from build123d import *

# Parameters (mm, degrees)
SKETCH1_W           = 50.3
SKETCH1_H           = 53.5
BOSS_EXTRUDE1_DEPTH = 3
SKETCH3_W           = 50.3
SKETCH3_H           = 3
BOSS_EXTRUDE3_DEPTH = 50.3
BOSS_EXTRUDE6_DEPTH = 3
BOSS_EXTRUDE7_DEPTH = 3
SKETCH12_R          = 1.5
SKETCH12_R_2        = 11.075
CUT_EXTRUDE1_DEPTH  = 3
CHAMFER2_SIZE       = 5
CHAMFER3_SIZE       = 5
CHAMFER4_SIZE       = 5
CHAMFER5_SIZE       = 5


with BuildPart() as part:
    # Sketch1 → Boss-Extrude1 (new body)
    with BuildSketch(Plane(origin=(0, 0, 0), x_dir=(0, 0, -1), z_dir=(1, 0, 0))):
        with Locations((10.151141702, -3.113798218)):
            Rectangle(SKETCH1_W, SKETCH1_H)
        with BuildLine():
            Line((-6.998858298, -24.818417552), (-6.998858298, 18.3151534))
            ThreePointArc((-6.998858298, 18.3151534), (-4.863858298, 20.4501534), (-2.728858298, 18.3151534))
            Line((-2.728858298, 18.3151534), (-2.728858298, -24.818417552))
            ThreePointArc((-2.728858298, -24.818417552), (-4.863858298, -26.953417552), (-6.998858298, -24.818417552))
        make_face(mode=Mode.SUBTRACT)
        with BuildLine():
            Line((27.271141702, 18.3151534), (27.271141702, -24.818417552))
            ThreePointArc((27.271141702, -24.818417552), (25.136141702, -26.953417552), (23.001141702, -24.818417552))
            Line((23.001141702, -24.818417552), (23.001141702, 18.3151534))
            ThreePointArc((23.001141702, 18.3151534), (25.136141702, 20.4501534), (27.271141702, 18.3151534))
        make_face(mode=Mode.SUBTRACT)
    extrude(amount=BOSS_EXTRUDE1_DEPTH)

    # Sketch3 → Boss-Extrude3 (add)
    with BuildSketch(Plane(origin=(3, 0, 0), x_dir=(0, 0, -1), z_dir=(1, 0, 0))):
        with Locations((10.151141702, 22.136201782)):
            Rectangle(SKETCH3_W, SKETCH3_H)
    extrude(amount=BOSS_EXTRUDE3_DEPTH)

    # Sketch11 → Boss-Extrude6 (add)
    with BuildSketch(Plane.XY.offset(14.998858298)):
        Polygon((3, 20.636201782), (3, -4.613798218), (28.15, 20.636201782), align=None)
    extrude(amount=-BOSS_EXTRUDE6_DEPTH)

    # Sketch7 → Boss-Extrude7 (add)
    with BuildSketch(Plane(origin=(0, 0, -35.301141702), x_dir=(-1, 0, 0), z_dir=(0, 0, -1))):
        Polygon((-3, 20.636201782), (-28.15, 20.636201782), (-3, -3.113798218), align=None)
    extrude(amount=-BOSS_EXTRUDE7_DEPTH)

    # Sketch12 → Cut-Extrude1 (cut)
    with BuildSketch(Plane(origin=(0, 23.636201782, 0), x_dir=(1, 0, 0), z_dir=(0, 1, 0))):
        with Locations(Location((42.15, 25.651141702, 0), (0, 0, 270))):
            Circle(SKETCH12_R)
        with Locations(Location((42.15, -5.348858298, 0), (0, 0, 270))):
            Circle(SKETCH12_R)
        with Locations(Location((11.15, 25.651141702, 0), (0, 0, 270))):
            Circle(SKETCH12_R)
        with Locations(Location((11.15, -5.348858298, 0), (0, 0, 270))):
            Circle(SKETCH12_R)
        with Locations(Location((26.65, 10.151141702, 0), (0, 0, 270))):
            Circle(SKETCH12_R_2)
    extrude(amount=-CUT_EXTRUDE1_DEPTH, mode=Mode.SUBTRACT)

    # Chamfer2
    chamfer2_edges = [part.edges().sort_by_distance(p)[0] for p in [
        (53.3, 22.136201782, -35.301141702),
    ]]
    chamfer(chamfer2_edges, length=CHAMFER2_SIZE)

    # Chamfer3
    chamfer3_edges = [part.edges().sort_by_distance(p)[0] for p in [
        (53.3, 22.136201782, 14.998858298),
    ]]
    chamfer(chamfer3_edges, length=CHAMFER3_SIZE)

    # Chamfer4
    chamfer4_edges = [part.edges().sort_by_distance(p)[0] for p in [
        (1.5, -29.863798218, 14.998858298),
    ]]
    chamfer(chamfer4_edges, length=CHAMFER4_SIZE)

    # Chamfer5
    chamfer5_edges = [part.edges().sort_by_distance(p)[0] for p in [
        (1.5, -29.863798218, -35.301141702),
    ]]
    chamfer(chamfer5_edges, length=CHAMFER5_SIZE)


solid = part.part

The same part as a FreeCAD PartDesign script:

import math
import FreeCAD as App
import Part
import Sketcher
from FreeCAD import Vector
Q = App.Units.Quantity


def edges_at(feature, points):
    """Names of the edges that pass closest to the given points."""
    edges = feature.Shape.Edges
    near = lambda p: min(range(len(edges)), key=lambda i: edges[i].distToShape(Part.Vertex(*p))[0])
    return sorted({f"Edge{near(p) + 1}" for p in points})


def add_polygon(sketch, points):
    """Adds a closed chain of lines whose ends are joined by coincident constraints."""
    first, n = sketch.GeometryCount, len(points)
    for a, b in zip(points, points[1:] + points[:1]):
        sketch.addGeometry(Part.LineSegment(App.Vector(*a, 0), App.Vector(*b, 0)), False)
    for i in range(n):
        sketch.addConstraint(Sketcher.Constraint("Coincident", first + i, 2, first + (i + 1) % n, 1))

doc = App.newDocument("Part")
body = doc.addObject("PartDesign::Body", "Body")

# Sketch on YZ plane
sketch1 = body.newObject("Sketcher::SketchObject", "Sketch")
sketch1.AttachmentSupport = (doc.getObject("YZ_Plane"), [""])
sketch1.MapMode = "FlatFace"
add_polygon(sketch1, [(23.6, 15), (-29.9, 15), (-29.9, -35.3), (23.6, -35.3)])  # lines 0-3
sketch1.addGeometry(Part.ArcOfCircle(Part.Circle(Vector(-24.8, 4.9, 0), Vector(0, 0, 1), 2.1), math.radians(90), math.radians(270)), False)  # 4
sketch1.addGeometry(Part.LineSegment(Vector(-24.8, 7, 0), Vector(18.3, 7, 0)), False)  # 5
sketch1.addGeometry(Part.ArcOfCircle(Part.Circle(Vector(18.3, 4.9, 0), Vector(0, 0, 1), 2.1), math.radians(-90), math.radians(90)), False)  # 6
sketch1.addGeometry(Part.LineSegment(Vector(18.3, 2.7, 0), Vector(-24.8, 2.7, 0)), False)  # 7
sketch1.addGeometry(Part.ArcOfCircle(Part.Circle(Vector(18.3, -25.1, 0), Vector(0, 0, 1), 2.1), math.radians(-90), math.radians(90)), False)  # 8
sketch1.addGeometry(Part.LineSegment(Vector(18.3, -27.3, 0), Vector(-24.8, -27.3, 0)), False)  # 9
sketch1.addGeometry(Part.ArcOfCircle(Part.Circle(Vector(-24.8, -25.1, 0), Vector(0, 0, 1), 2.1), math.radians(90), math.radians(270)), False)  # 10
sketch1.addGeometry(Part.LineSegment(Vector(-24.8, -23, 0), Vector(18.3, -23, 0)), False)  # 11
sketch1.addConstraint([
    Sketcher.Constraint("Tangent", 4, 1, 5, 1),
    Sketcher.Constraint("Tangent", 5, 2, 6, 2),
    Sketcher.Constraint("Tangent", 6, 1, 7, 1),
    Sketcher.Constraint("Tangent", 7, 2, 4, 2),
    Sketcher.Constraint("Tangent", 8, 1, 9, 1),
    Sketcher.Constraint("Tangent", 9, 2, 10, 2),
    Sketcher.Constraint("Tangent", 10, 1, 11, 1),
    Sketcher.Constraint("Tangent", 11, 2, 8, 2),
    Sketcher.Constraint("Horizontal", 0),
    Sketcher.Constraint("Vertical", 1),
    Sketcher.Constraint("Horizontal", 2),
    Sketcher.Constraint("Vertical", 3),
    Sketcher.Constraint("Horizontal", 5),
    Sketcher.Constraint("Horizontal", 7),
    Sketcher.Constraint("Horizontal", 9),
    Sketcher.Constraint("Horizontal", 11),
    Sketcher.Constraint("Equal", 6, 8),
    Sketcher.Constraint("Vertical", 6, 3, 8, 3),
    Sketcher.Constraint("Vertical", 4, 3, 10, 3),
    Sketcher.Constraint("DistanceX", 0, 2, 0, 1, Q("53.5 mm")),
    Sketcher.Constraint("DistanceY", 1, 2, 1, 1, Q("50.3 mm")),
    Sketcher.Constraint("Radius", 4, Q("2.135 mm")),
    Sketcher.Constraint("DistanceY", 8, 3, 6, 3, Q("30 mm")),
    Sketcher.Constraint("DistanceY", 4, 1, 0, 2, Q("8 mm")),
    Sketcher.Constraint("DistanceX", 5, 1, 5, 2, Q("43.133571 mm")),
    Sketcher.Constraint("DistanceX", 0, 2, -1, 1, Q("29.863798 mm")),
    Sketcher.Constraint("DistanceY", -1, 1, 4, 3, Q("4.863858 mm")),
    Sketcher.Constraint("DistanceX", 0, 2, 4, 3, Q("5.045381 mm")),
])
pad1 = body.newObject("PartDesign::Pad", "Pad")
pad1.Profile = sketch1
pad1.Length = 3

# Sketch on YZ plane
sketch2 = body.newObject("Sketcher::SketchObject", "Sketch001")
sketch2.AttachmentSupport = (doc.getObject("YZ_Plane"), [""])
sketch2.MapMode = "FlatFace"
sketch2.AttachmentOffset = App.Placement(Vector(0, 0, 3), App.Rotation())
add_polygon(sketch2, [(23.6, 15), (20.6, 15), (20.6, -35.3), (23.6, -35.3)])  # lines 0-3
sketch2.addConstraint([
    Sketcher.Constraint("Horizontal", 0),
    Sketcher.Constraint("Vertical", 1),
    Sketcher.Constraint("Horizontal", 2),
    Sketcher.Constraint("Vertical", 3),
    Sketcher.Constraint("DistanceX", 0, 2, 0, 1, Q("3 mm")),
    Sketcher.Constraint("DistanceY", 1, 2, 1, 1, Q("50.3 mm")),
    Sketcher.Constraint("DistanceX", -1, 1, 0, 2, Q("20.636202 mm")),
    Sketcher.Constraint("DistanceY", -1, 1, 0, 2, Q("14.998858 mm")),
])
pad2 = body.newObject("PartDesign::Pad", "Pad001")
pad2.Profile = sketch2
pad2.Length = 50.3

# Sketch on XY plane
sketch3 = body.newObject("Sketcher::SketchObject", "Sketch002")
sketch3.AttachmentSupport = (doc.getObject("XY_Plane"), [""])
sketch3.MapMode = "FlatFace"
sketch3.AttachmentOffset = App.Placement(Vector(0, 0, 14.998858), App.Rotation())
add_polygon(sketch3, [(3, 21), (3, -5), (28, 21)])  # lines 0-2
sketch3.addConstraint([
    Sketcher.Constraint("Vertical", 0),
    Sketcher.Constraint("Horizontal", 2),
    Sketcher.Constraint("DistanceX", -1, 1, 0, 2, Q("3 mm")),
    Sketcher.Constraint("DistanceX", 2, 2, 2, 1, Q("25.15 mm")),
    Sketcher.Constraint("DistanceY", 0, 2, 0, 1, Q("25.25 mm")),
    Sketcher.Constraint("DistanceY", 0, 2, -1, 1, Q("4.613798 mm")),
])
pad3 = body.newObject("PartDesign::Pad", "Pad002")
pad3.Profile = sketch3
pad3.Length = 3
pad3.Reversed = True

# Sketch on XY plane
sketch4 = body.newObject("Sketcher::SketchObject", "Sketch003")
sketch4.AttachmentSupport = (doc.getObject("XY_Plane"), [""])
sketch4.MapMode = "FlatFace"
sketch4.AttachmentOffset = App.Placement(Vector(0, 0, -35.301142), App.Rotation())
add_polygon(sketch4, [(3, 21), (28, 21), (3, -3)])  # lines 0-2
sketch4.addConstraint([
    Sketcher.Constraint("Horizontal", 0),
    Sketcher.Constraint("Vertical", 2),
    Sketcher.Constraint("DistanceX", -1, 1, 1, 2, Q("3 mm")),
    Sketcher.Constraint("DistanceX", 0, 1, 0, 2, Q("25.15 mm")),
    Sketcher.Constraint("DistanceY", 2, 1, 2, 2, Q("23.75 mm")),
    Sketcher.Constraint("DistanceY", -1, 1, 0, 2, Q("20.636202 mm")),
])
pad4 = body.newObject("PartDesign::Pad", "Pad003")
pad4.Profile = sketch4
pad4.Length = 3

# Sketch on XZ plane
sketch5 = body.newObject("Sketcher::SketchObject", "Sketch004")
sketch5.AttachmentSupport = (doc.getObject("XZ_Plane"), [""])
sketch5.MapMode = "FlatFace"
sketch5.AttachmentOffset = App.Placement(Vector(0, 0, -23.636202), App.Rotation())
sketch5.addGeometry([
    Part.Circle(Vector(42.1, -25.7, 0), Vector(0, 0, 1), 1.5),  # 0
    Part.Circle(Vector(42.1, 5.3, 0), Vector(0, 0, 1), 1.5),  # 1
    Part.Circle(Vector(11.2, -25.7, 0), Vector(0, 0, 1), 1.5),  # 2
    Part.Circle(Vector(11.2, 5.3, 0), Vector(0, 0, 1), 1.5),  # 3
    Part.Circle(Vector(26.6, -10.2, 0), Vector(0, 0, 1), 11.1),  # 4
], False)
sketch5.addConstraint([
    Sketcher.Constraint("Equal", 0, 1),
    Sketcher.Constraint("Equal", 1, 2),
    Sketcher.Constraint("Equal", 2, 3),
    Sketcher.Constraint("Horizontal", 0, 3, 2, 3),
    Sketcher.Constraint("Horizontal", 1, 3, 3, 3),
    Sketcher.Constraint("Vertical", 0, 3, 1, 3),
    Sketcher.Constraint("Vertical", 2, 3, 3, 3),
    Sketcher.Constraint("Diameter", 0, Q("3 mm")),
    Sketcher.Constraint("Diameter", 4, Q("22.15 mm")),
    Sketcher.Constraint("DistanceY", 0, 3, 1, 3, Q("31 mm")),
    Sketcher.Constraint("DistanceX", 2, 3, 0, 3, Q("31 mm")),
    Sketcher.Constraint("DistanceX", 4, 3, 0, 3, Q("15.5 mm")),
    Sketcher.Constraint("DistanceY", 0, 3, 4, 3, Q("15.5 mm")),
    Sketcher.Constraint("DistanceX", -1, 1, 0, 3, Q("42.15 mm")),
    Sketcher.Constraint("DistanceY", 0, 3, -1, 1, Q("25.651142 mm")),
])
pocket1 = body.newObject("PartDesign::Pocket", "Pocket")
pocket1.Profile = sketch5
pocket1.Length = 3
pocket1.Reversed = True
doc.recompute()

chamfer = body.newObject("PartDesign::Chamfer", "Chamfer")
chamfer.Base = (pocket1, edges_at(pocket1, [(53.3, 22.136, -35.301)]))
chamfer.Size = 5
doc.recompute()

chamfer2 = body.newObject("PartDesign::Chamfer", "Chamfer001")
chamfer2.Base = (chamfer, edges_at(chamfer, [(53.3, 22.136, 14.999)]))
chamfer2.Size = 5
doc.recompute()

chamfer3 = body.newObject("PartDesign::Chamfer", "Chamfer002")
chamfer3.Base = (chamfer2, edges_at(chamfer2, [(1.5, -29.864, 14.999)]))
chamfer3.Size = 5
doc.recompute()

chamfer4 = body.newObject("PartDesign::Chamfer", "Chamfer003")
chamfer4.Base = (chamfer3, edges_at(chamfer3, [(1.5, -29.864, -35.301)]))
chamfer4.Size = 5

doc.recompute()
